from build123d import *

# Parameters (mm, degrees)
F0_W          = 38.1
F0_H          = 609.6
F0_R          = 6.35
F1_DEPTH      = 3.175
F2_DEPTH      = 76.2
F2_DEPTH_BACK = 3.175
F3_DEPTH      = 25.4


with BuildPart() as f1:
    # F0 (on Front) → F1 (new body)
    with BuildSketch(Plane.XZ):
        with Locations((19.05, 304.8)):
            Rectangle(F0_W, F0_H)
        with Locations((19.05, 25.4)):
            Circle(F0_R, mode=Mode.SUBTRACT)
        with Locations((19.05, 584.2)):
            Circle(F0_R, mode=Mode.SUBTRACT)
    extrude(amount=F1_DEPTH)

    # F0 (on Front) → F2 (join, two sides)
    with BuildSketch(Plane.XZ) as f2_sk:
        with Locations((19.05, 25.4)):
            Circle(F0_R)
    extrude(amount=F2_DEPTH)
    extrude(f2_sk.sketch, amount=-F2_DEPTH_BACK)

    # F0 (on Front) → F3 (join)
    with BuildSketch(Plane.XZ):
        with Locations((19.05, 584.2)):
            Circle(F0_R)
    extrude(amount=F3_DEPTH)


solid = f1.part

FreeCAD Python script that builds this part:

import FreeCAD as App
import Part
import Sketcher
Q = App.Units.Quantity


def add_polygon(sketch, points):
    """Adds a closed chain of lines whose ends are joined by coincident constraints."""
    first, n = sketch.GeometryCount, len(points)
    for a, b in zip(points, points[1:] + points[:1]):
        sketch.addGeometry(Part.LineSegment(App.Vector(*a, 0), App.Vector(*b, 0)), False)
    for i in range(n):
        sketch.addConstraint(Sketcher.Constraint("Coincident", first + i, 2, first + (i + 1) % n, 1))

doc = App.newDocument("Part")
body = doc.addObject("PartDesign::Body", "Body")

# Sketch on XZ plane
sketch1 = body.newObject("Sketcher::SketchObject", "Sketch")
sketch1.AttachmentSupport = (doc.getObject("XZ_Plane"), [""])
sketch1.MapMode = "FlatFace"
add_polygon(sketch1, [(0, 610), (0, 0), (38, 0), (38, 610)])  # lines 0-3
sketch1.addGeometry(Part.Circle(App.Vector(19, 25, 0), App.Vector(0, 0, 1), 6), False)  # 4
sketch1.addGeometry(Part.Circle(App.Vector(19, 584, 0), App.Vector(0, 0, 1), 6), False)  # 5
sketch1.addConstraint([
    Sketcher.Constraint("Vertical", 0),
    Sketcher.Constraint("Horizontal", 1),
    Sketcher.Constraint("Vertical", 2),
    Sketcher.Constraint("Horizontal", 3),
    Sketcher.Constraint("Coincident", 0, 2, -1, 1),
    Sketcher.Constraint("Equal", 4, 5),
    Sketcher.Constraint("Vertical", 4, 3, 5, 3),
    Sketcher.Constraint("Diameter", 4, Q("0.5 in")),
    Sketcher.Constraint("DistanceY", 0, 2, 0, 1, Q("24 in")),
    Sketcher.Constraint("DistanceX", 1, 1, 1, 2, Q("1.5 in")),
    Sketcher.Constraint("DistanceY", -1, 1, 4, 3, Q("1 in")),
    Sketcher.Constraint("DistanceY", -1, 1, 5, 3, Q("23 in")),
    Sketcher.Constraint("DistanceX", -1, 1, 4, 3, Q("0.75 in")),
])
pad1 = body.newObject("PartDesign::Pad", "Pad")
pad1.Profile = sketch1
pad1.Length = Q("0.125 in")

# Sketch on XZ plane
sketch2 = body.newObject("Sketcher::SketchObject", "Sketch001")
sketch2.AttachmentSupport = (doc.getObject("XZ_Plane"), [""])
sketch2.MapMode = "FlatFace"
sketch2.addGeometry(Part.Circle(App.Vector(19, 25, 0), App.Vector(0, 0, 1), 6), False)
sketch2.addConstraint([
    Sketcher.Constraint("Diameter", 0, Q("0.5 in")),
    Sketcher.Constraint("DistanceY", -1, 1, 0, 3, Q("1 in")),
    Sketcher.Constraint("DistanceX", -1, 1, 0, 3, Q("0.75 in")),
])
pad2 = body.newObject("PartDesign::Pad", "Pad001")
pad2.Profile = sketch2
pad2.Type = "TwoLengths"
pad2.Length = Q("3 in")
pad2.Length2 = Q("0.125 in")

# Sketch on XZ plane
sketch3 = body.newObject("Sketcher::SketchObject", "Sketch002")
sketch3.AttachmentSupport = (doc.getObject("XZ_Plane"), [""])
sketch3.MapMode = "FlatFace"
sketch3.addGeometry(Part.Circle(App.Vector(19, 584, 0), App.Vector(0, 0, 1), 6), False)
sketch3.addConstraint([
    Sketcher.Constraint("Diameter", 0, Q("0.5 in")),
    Sketcher.Constraint("DistanceY", -1, 1, 0, 3, Q("23 in")),
    Sketcher.Constraint("DistanceX", -1, 1, 0, 3, Q("0.75 in")),
])
pad3 = body.newObject("PartDesign::Pad", "Pad002")
pad3.Profile = sketch3
pad3.Length = Q("1 in")

doc.recompute()
